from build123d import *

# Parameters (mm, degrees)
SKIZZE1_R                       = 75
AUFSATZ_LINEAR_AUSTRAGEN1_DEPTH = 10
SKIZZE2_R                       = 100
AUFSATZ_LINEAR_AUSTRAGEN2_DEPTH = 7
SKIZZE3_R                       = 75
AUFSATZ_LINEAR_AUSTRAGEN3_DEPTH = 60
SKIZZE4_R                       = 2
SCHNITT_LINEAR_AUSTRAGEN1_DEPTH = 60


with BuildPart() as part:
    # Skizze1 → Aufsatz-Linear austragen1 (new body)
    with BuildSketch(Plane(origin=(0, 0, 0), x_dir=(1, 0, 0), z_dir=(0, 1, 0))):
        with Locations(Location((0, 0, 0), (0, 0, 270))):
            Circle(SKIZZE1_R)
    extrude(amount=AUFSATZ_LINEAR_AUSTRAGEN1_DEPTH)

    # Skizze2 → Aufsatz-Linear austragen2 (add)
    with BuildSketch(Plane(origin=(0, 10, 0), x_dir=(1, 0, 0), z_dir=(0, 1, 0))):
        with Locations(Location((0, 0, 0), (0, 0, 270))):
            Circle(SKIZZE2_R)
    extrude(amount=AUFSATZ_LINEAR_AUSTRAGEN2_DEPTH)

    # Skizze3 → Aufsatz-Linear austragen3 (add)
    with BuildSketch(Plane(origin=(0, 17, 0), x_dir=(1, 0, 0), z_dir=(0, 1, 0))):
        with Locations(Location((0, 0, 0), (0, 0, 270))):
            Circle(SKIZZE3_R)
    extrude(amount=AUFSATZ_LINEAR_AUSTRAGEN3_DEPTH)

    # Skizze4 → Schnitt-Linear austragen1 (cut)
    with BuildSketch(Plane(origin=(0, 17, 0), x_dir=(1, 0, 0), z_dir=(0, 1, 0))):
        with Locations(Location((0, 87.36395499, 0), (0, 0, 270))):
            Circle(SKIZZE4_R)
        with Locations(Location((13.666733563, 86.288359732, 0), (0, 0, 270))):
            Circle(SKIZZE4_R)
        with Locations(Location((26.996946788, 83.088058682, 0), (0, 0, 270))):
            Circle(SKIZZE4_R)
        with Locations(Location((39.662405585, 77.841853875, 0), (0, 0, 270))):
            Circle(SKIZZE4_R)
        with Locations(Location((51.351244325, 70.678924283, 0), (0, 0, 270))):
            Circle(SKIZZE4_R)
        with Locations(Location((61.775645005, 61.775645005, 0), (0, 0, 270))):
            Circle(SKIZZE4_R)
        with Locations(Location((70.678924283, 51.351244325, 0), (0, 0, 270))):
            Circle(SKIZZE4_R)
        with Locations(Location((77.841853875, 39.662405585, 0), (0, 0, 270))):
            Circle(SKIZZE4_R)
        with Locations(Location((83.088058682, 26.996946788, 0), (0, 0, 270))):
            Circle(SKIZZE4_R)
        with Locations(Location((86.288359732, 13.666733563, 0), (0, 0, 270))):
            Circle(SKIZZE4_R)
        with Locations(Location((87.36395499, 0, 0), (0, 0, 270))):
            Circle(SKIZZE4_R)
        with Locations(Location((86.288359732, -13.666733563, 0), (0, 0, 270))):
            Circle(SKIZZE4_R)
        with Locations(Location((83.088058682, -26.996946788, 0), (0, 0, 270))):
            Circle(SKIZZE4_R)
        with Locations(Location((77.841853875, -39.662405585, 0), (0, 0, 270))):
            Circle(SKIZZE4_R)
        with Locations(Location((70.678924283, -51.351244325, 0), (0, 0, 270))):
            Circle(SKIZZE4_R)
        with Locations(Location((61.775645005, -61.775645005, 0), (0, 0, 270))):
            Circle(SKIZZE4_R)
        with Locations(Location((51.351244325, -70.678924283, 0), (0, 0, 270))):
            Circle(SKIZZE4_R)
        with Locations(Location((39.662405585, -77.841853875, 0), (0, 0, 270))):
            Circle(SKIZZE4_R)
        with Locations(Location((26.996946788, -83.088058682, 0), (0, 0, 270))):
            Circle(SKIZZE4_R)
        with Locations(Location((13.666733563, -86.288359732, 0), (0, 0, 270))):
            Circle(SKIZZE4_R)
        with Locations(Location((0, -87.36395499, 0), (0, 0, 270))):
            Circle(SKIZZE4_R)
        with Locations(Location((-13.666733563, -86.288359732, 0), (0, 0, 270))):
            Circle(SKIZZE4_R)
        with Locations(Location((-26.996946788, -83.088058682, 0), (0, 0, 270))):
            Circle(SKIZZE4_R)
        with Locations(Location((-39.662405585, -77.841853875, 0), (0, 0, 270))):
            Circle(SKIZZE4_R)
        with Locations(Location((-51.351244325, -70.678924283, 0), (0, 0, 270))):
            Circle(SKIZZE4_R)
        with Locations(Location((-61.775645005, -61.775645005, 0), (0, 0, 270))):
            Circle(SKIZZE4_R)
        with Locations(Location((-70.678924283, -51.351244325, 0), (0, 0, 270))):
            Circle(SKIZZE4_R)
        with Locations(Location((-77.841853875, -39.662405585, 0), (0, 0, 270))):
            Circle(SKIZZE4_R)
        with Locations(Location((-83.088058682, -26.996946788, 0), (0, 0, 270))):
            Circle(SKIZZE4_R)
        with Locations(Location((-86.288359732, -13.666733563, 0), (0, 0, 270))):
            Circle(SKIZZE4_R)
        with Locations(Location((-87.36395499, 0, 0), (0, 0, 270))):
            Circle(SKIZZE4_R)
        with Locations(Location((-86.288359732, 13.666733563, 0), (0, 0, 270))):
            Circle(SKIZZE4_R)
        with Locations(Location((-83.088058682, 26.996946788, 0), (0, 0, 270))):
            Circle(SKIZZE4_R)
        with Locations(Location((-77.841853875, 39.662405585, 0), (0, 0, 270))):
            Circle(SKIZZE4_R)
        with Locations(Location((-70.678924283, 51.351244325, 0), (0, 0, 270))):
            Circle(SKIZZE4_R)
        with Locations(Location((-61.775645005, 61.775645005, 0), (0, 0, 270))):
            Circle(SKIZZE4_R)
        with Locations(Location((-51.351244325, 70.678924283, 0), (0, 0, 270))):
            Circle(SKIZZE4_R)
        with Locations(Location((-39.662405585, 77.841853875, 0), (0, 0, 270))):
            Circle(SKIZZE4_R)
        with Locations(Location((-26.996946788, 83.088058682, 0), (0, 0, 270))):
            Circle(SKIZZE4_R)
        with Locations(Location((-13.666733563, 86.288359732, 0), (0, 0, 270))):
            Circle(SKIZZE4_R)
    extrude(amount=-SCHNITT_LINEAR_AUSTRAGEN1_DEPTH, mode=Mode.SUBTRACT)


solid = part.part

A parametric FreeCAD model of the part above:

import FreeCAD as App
import Part
import Sketcher

doc = App.newDocument("Part")
body = doc.addObject("PartDesign::Body", "Body")

# Sketch on XZ plane
sketch1 = body.newObject("Sketcher::SketchObject", "Sketch")
sketch1.AttachmentSupport = (doc.getObject("XZ_Plane"), [""])
sketch1.MapMode = "FlatFace"
sketch1.addGeometry(Part.Circle(App.Vector(0, 0, 0), App.Vector(0, 0, 1), 75), False)
sketch1.addConstraint([
    Sketcher.Constraint("Coincident", 0, 3, -1, 1),
    Sketcher.Constraint("Diameter", 0, 150.0),
])
pad1 = body.newObject("PartDesign::Pad", "Pad")
pad1.Profile = sketch1
pad1.Length = 10
pad1.Reversed = True

# Sketch on XZ plane
sketch2 = body.newObject("Sketcher::SketchObject", "Sketch001")
sketch2.AttachmentSupport = (doc.getObject("XZ_Plane"), [""])
sketch2.MapMode = "FlatFace"
sketch2.AttachmentOffset = App.Placement(App.Vector(0, 0, -10), App.Rotation())
sketch2.addGeometry(Part.Circle(App.Vector(0, 0, 0), App.Vector(0, 0, 1), 100), False)
sketch2.addConstraint([
    Sketcher.Constraint("Coincident", 0, 3, -1, 1),
    Sketcher.Constraint("Diameter", 0, 200.0),
])
pad2 = body.newObject("PartDesign::Pad", "Pad001")
pad2.Profile = sketch2
pad2.Length = 7
pad2.Reversed = True

# Sketch on XZ plane
sketch3 = body.newObject("Sketcher::SketchObject", "Sketch002")
sketch3.AttachmentSupport = (doc.getObject("XZ_Plane"), [""])
sketch3.MapMode = "FlatFace"
sketch3.AttachmentOffset = App.Placement(App.Vector(0, 0, -17), App.Rotation())
sketch3.addGeometry(Part.Circle(App.Vector(0, 0, 0), App.Vector(0, 0, 1), 75), False)
sketch3.addConstraint([
    Sketcher.Constraint("Coincident", 0, 3, -1, 1),
    Sketcher.Constraint("Diameter", 0, 150.0),
])
pad3 = body.newObject("PartDesign::Pad", "Pad002")
pad3.Profile = sketch3
pad3.Length = 60
pad3.Reversed = True

# Sketch on XZ plane
sketch4 = body.newObject("Sketcher::SketchObject", "Sketch003")
sketch4.AttachmentSupport = (doc.getObject("XZ_Plane"), [""])
sketch4.MapMode = "FlatFace"
sketch4.AttachmentOffset = App.Placement(App.Vector(0, 0, -17), App.Rotation())
sketch4.addGeometry([
    Part.Circle(App.Vector(0, -87.4, 0), App.Vector(0, 0, 1), 2),  # 0
    Part.Circle(App.Vector(13.7, -86.3, 0), App.Vector(0, 0, 1), 2),  # 1
    Part.Circle(App.Vector(27, -83.1, 0), App.Vector(0, 0, 1), 2),  # 2
    Part.Circle(App.Vector(39.7, -77.8, 0), App.Vector(0, 0, 1), 2),  # 3
    Part.Circle(App.Vector(51.4, -70.7, 0), App.Vector(0, 0, 1), 2),  # 4
    Part.Circle(App.Vector(61.8, -61.8, 0), App.Vector(0, 0, 1), 2),  # 5
    Part.Circle(App.Vector(70.7, -51.4, 0), App.Vector(0, 0, 1), 2),  # 6
    Part.Circle(App.Vector(77.8, -39.7, 0), App.Vector(0, 0, 1), 2),  # 7
    Part.Circle(App.Vector(83.1, -27, 0), App.Vector(0, 0, 1), 2),  # 8
    Part.Circle(App.Vector(86.3, -13.7, 0), App.Vector(0, 0, 1), 2),  # 9
    Part.Circle(App.Vector(87.4, 0, 0), App.Vector(0, 0, 1), 2),  # 10
    Part.Circle(App.Vector(86.3, 13.7, 0), App.Vector(0, 0, 1), 2),  # 11
    Part.Circle(App.Vector(83.1, 27, 0), App.Vector(0, 0, 1), 2),  # 12
    Part.Circle(App.Vector(77.8, 39.7, 0), App.Vector(0, 0, 1), 2),  # 13
    Part.Circle(App.Vector(70.7, 51.4, 0), App.Vector(0, 0, 1), 2),  # 14
    Part.Circle(App.Vector(61.8, 61.8, 0), App.Vector(0, 0, 1), 2),  # 15
    Part.Circle(App.Vector(51.4, 70.7, 0), App.Vector(0, 0, 1), 2),  # 16
    Part.Circle(App.Vector(39.7, 77.8, 0), App.Vector(0, 0, 1), 2),  # 17
    Part.Circle(App.Vector(27, 83.1, 0), App.Vector(0, 0, 1), 2),  # 18
    Part.Circle(App.Vector(13.7, 86.3, 0), App.Vector(0, 0, 1), 2),  # 19
    Part.Circle(App.Vector(0, 87.4, 0), App.Vector(0, 0, 1), 2),  # 20
    Part.Circle(App.Vector(-13.7, 86.3, 0), App.Vector(0, 0, 1), 2),  # 21
    Part.Circle(App.Vector(-27, 83.1, 0), App.Vector(0, 0, 1), 2),  # 22
    Part.Circle(App.Vector(-39.7, 77.8, 0), App.Vector(0, 0, 1), 2),  # 23
    Part.Circle(App.Vector(-51.4, 70.7, 0), App.Vector(0, 0, 1), 2),  # 24
    Part.Circle(App.Vector(-61.8, 61.8, 0), App.Vector(0, 0, 1), 2),  # 25
    Part.Circle(App.Vector(-70.7, 51.4, 0), App.Vector(0, 0, 1), 2),  # 26
    Part.Circle(App.Vector(-77.8, 39.7, 0), App.Vector(0, 0, 1), 2),  # 27
    Part.Circle(App.Vector(-83.1, 27, 0), App.Vector(0, 0, 1), 2),  # 28
    Part.Circle(App.Vector(-86.3, 13.7, 0), App.Vector(0, 0, 1), 2),  # 29
    Part.Circle(App.Vector(-87.4, 0, 0), App.Vector(0, 0, 1), 2),  # 30
    Part.Circle(App.Vector(-86.3, -13.7, 0), App.Vector(0, 0, 1), 2),  # 31
    Part.Circle(App.Vector(-83.1, -27, 0), App.Vector(0, 0, 1), 2),  # 32
    Part.Circle(App.Vector(-77.8, -39.7, 0), App.Vector(0, 0, 1), 2),  # 33
    Part.Circle(App.Vector(-70.7, -51.4, 0), App.Vector(0, 0, 1), 2),  # 34
    Part.Circle(App.Vector(-61.8, -61.8, 0), App.Vector(0, 0, 1), 2),  # 35
    Part.Circle(App.Vector(-51.4, -70.7, 0), App.Vector(0, 0, 1), 2),  # 36
    Part.Circle(App.Vector(-39.7, -77.8, 0), App.Vector(0, 0, 1), 2),  # 37
    Part.Circle(App.Vector(-27, -83.1, 0), App.Vector(0, 0, 1), 2),  # 38
    Part.Circle(App.Vector(-13.7, -86.3, 0), App.Vector(0, 0, 1), 2),  # 39
], False)
sketch4.addConstraint([
    Sketcher.Constraint("Equal", 0, 1),
    Sketcher.Constraint("Equal", 1, 2),
    Sketcher.Constraint("Equal", 2, 3),
    Sketcher.Constraint("Equal", 3, 4),
    Sketcher.Constraint("Equal", 4, 5),
    Sketcher.Constraint("Equal", 5, 6),
    Sketcher.Constraint("Equal", 6, 7),
    Sketcher.Constraint("Equal", 7, 8),
    Sketcher.Constraint("Equal", 8, 9),
    Sketcher.Constraint("Equal", 9, 10),
    Sketcher.Constraint("Equal", 10, 11),
    Sketcher.Constraint("Equal", 11, 12),
    Sketcher.Constraint("Equal", 12, 13),
    Sketcher.Constraint("Equal", 13, 14),
    Sketcher.Constraint("Equal", 14, 15),
    Sketcher.Constraint("Equal", 15, 16),
    Sketcher.Constraint("Equal", 16, 17),
    Sketcher.Constraint("Equal", 17, 18),
    Sketcher.Constraint("Equal", 18, 19),
    Sketcher.Constraint("Equal", 19, 20),
    Sketcher.Constraint("Equal", 20, 21),
    Sketcher.Constraint("Equal", 21, 22),
    Sketcher.Constraint("Equal", 22, 23),
    Sketcher.Constraint("Equal", 23, 24),
    Sketcher.Constraint("Equal", 24, 25),
    Sketcher.Constraint("Equal", 25, 26),
    Sketcher.Constraint("Equal", 26, 27),
    Sketcher.Constraint("Equal", 27, 28),
    Sketcher.Constraint("Equal", 28, 29),
    Sketcher.Constraint("Equal", 29, 30),
    Sketcher.Constraint("Equal", 30, 31),
    Sketcher.Constraint("Equal", 31, 32),
    Sketcher.Constraint("Equal", 32, 33),
    Sketcher.Constraint("Equal", 33, 34),
    Sketcher.Constraint("Equal", 34, 35),
    Sketcher.Constraint("Equal", 35, 36),
    Sketcher.Constraint("Equal", 36, 37),
    Sketcher.Constraint("Equal", 37, 38),
    Sketcher.Constraint("Equal", 38, 39),
    Sketcher.Constraint("Symmetric", 0, 3, 20, 3, -1, 1),
    Sketcher.Constraint("Symmetric", 1, 3, 21, 3, -1, 1),
    Sketcher.Constraint("Symmetric", 2, 3, 22, 3, -1, 1),
    Sketcher.Constraint("Symmetric", 3, 3, 23, 3, -1, 1),
    Sketcher.Constraint("Symmetric", 4, 3, 24, 3, -1, 1),
    Sketcher.Constraint("Symmetric", 5, 3, 25, 3, -1, 1),
    Sketcher.Constraint("Symmetric", 6, 3, 26, 3, -1, 1),
    Sketcher.Constraint("Symmetric", 7, 3, 27, 3, -1, 1),
    Sketcher.Constraint("Symmetric", 8, 3, 28, 3, -1, 1),
    Sketcher.Constraint("Symmetric", 9, 3, 29, 3, -1, 1),
    Sketcher.Constraint("Symmetric", 10, 3, 30, 3, -1, 1),
    Sketcher.Constraint("Symmetric", 11, 3, 31, 3, -1, 1),
    Sketcher.Constraint("Symmetric", 12, 3, 32, 3, -1, 1),
    Sketcher.Constraint("Symmetric", 13, 3, 33, 3, -1, 1),
    Sketcher.Constraint("Symmetric", 14, 3, 34, 3, -1, 1),
    Sketcher.Constraint("Symmetric", 15, 3, 35, 3, -1, 1),
    Sketcher.Constraint("Symmetric", 16, 3, 36, 3, -1, 1),
    Sketcher.Constraint("Symmetric", 17, 3, 37, 3, -1, 1),
    Sketcher.Constraint("Symmetric", 18, 3, 38, 3, -1, 1),
    Sketcher.Constraint("Symmetric", 19, 3, 39, 3, -1, 1),
    Sketcher.Constraint("Symmetric", 19, 3, 21, 3, -2),
    Sketcher.Constraint("Symmetric", 18, 3, 22, 3, -2),
    Sketcher.Constraint("Symmetric", 17, 3, 23, 3, -2),
    Sketcher.Constraint("Symmetric", 16, 3, 24, 3, -2),
    Sketcher.Constraint("Symmetric", 15, 3, 25, 3, -2),
    Sketcher.Constraint("Symmetric", 14, 3, 26, 3, -2),
    Sketcher.Constraint("Symmetric", 13, 3, 27, 3, -2),
    Sketcher.Constraint("Symmetric", 12, 3, 28, 3, -2),
    Sketcher.Constraint("Symmetric", 11, 3, 29, 3, -2),
    Sketcher.Constraint("PointOnObject", 0, 3, -2),
    Sketcher.Constraint("PointOnObject", 10, 3, -1),
    Sketcher.Constraint("Diameter", 0, 4.0),
    Sketcher.Constraint("DistanceY", 1, 3, 2, 3, 3.200301),
    Sketcher.Constraint("DistanceY", 0, 3, 3, 3, 9.522101),
    Sketcher.Constraint("DistanceX", 4, 3, 5, 3, 10.424401),
    Sketcher.Constraint("DistanceX", 2, 3, 5, 3, 34.778698),
    Sketcher.Constraint("DistanceY", 5, 3, 6, 3, 10.424401),
    Sketcher.Constraint("DistanceY", 5, 3, 8, 3, 34.778698),
    Sketcher.Constraint("DistanceX", 8, 3, 9, 3, 3.200301),
    Sketcher.Constraint("DistanceX", 7, 3, 10, 3, 9.522101),
    Sketcher.Constraint("DistanceY", 1, 3, -1, 1, 86.28836),
    Sketcher.Constraint("DistanceX", -1, 1, 8, 3, 83.088059),
    Sketcher.Constraint("DistanceX", 2, 3, 3, 3, 12.665459),
    Sketcher.Constraint("DistanceY", 3, 3, 4, 3, 7.16293),
    Sketcher.Constraint("DistanceX", 1, 3, 4, 3, 37.684511),
    Sketcher.Constraint("DistanceY", 4, 3, 5, 3, 8.903279),
    Sketcher.Constraint("DistanceX", 5, 3, 6, 3, 8.903279),
    Sketcher.Constraint("DistanceX", 6, 3, 7, 3, 7.16293),
    Sketcher.Constraint("DistanceY", 6, 3, 7, 3, 11.688839),
    Sketcher.Constraint("DistanceY", 6, 3, 9, 3, 37.684511),
    Sketcher.Constraint("DistanceY", 8, 3, 11, 3, 40.66368),
    Sketcher.Constraint("DistanceX", 21, 3, 18, 3, 40.66368),
])
pocket1 = body.newObject("PartDesign::Pocket", "Pocket")
pocket1.Profile = sketch4
pocket1.Length = 60
pocket1.Reversed = True

doc.recompute()
